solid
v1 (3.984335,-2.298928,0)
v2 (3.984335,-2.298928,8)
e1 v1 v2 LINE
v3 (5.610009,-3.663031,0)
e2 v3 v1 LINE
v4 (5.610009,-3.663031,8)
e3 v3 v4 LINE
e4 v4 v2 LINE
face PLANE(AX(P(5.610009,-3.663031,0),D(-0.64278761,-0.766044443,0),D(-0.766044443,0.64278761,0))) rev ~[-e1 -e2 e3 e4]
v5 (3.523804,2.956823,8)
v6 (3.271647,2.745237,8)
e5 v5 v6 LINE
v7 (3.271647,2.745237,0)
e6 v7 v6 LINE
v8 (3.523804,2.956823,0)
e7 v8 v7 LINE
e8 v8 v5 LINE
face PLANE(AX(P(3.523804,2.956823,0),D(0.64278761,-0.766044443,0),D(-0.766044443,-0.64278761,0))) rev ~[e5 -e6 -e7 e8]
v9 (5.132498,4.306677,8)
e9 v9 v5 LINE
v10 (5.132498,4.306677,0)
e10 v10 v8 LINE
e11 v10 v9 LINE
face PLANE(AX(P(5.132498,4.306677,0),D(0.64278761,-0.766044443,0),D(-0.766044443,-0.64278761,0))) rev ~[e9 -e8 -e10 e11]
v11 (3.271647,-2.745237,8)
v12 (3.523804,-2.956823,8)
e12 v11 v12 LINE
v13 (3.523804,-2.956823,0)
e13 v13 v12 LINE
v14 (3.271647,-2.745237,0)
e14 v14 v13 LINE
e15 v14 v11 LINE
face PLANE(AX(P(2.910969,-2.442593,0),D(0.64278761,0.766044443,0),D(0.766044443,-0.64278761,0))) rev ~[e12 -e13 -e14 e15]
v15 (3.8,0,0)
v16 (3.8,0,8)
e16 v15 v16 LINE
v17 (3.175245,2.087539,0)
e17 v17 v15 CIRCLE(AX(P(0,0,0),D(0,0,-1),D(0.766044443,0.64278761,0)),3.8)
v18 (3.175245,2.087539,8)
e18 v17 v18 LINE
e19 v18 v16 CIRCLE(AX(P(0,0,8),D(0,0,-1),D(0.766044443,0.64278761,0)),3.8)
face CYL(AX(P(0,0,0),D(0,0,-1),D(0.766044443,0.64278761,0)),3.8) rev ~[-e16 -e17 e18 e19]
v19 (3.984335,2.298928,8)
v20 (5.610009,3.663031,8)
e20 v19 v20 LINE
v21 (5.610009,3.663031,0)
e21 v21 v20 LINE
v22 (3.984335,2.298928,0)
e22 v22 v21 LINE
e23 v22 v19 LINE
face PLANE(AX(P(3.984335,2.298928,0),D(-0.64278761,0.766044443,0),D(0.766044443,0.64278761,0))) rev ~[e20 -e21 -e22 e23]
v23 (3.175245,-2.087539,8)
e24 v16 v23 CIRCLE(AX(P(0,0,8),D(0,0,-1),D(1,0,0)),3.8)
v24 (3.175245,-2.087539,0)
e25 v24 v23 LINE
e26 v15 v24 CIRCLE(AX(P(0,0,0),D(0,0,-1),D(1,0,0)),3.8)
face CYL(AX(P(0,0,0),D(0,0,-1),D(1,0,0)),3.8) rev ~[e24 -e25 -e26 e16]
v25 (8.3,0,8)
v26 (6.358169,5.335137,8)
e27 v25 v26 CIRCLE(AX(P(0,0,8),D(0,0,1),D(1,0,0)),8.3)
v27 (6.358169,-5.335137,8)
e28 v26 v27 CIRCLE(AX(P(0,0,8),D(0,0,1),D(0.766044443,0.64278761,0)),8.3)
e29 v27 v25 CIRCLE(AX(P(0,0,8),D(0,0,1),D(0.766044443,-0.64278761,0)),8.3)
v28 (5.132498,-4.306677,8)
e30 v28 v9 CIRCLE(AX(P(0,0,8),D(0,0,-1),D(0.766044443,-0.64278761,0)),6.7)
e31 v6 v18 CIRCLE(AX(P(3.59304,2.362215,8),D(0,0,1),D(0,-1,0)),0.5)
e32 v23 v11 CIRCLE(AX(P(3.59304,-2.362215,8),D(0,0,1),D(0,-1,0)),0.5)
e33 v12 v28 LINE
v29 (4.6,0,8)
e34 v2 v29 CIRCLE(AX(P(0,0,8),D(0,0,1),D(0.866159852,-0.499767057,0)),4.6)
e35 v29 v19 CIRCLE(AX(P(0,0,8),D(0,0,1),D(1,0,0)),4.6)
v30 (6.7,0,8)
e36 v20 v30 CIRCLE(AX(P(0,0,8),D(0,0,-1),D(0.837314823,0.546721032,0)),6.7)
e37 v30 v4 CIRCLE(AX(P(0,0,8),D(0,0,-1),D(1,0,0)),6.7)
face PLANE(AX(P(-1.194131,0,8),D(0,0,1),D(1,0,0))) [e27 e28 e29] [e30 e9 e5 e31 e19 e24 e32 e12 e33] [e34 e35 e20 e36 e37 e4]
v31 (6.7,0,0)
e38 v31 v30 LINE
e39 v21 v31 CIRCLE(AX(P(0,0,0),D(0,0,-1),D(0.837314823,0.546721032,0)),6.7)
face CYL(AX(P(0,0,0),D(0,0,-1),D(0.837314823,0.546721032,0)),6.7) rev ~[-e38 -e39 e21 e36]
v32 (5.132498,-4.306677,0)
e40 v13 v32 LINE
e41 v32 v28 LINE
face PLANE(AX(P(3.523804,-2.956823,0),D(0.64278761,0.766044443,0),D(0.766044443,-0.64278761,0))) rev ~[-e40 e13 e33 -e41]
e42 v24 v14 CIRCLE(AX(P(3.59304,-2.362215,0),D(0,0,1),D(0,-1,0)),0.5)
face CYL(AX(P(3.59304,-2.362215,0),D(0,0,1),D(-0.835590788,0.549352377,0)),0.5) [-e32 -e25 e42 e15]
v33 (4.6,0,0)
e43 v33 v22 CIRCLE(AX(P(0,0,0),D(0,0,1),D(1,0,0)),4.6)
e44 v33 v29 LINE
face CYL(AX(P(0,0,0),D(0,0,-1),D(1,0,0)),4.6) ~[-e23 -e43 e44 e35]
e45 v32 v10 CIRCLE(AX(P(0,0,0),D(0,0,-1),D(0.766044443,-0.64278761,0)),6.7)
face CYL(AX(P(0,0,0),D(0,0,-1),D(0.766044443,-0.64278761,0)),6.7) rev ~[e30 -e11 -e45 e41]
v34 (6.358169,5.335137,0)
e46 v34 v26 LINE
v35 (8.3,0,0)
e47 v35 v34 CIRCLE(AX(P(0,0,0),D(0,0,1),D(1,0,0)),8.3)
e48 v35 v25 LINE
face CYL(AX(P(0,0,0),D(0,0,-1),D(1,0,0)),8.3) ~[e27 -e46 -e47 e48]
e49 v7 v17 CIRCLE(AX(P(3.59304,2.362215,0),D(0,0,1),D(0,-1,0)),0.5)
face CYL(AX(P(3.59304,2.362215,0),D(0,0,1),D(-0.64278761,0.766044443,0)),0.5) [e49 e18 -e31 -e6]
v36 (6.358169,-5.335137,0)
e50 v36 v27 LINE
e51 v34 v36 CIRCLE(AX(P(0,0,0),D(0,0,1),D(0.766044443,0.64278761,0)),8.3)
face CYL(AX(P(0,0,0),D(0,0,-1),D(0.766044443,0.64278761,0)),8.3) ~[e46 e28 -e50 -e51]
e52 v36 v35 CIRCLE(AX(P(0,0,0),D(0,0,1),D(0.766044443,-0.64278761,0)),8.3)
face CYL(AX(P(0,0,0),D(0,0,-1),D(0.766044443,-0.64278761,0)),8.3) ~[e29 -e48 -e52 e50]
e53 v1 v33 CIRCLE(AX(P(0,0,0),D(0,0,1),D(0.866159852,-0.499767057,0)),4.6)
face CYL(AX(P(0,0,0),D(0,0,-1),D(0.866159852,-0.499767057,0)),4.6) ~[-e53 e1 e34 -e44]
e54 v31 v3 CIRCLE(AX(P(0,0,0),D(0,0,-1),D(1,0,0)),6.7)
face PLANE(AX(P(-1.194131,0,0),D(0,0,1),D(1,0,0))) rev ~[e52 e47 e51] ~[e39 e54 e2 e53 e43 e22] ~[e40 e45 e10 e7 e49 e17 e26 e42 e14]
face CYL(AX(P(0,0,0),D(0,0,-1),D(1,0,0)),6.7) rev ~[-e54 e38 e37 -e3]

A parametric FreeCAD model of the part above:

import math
import FreeCAD as App
import Part
import Sketcher
Q = App.Units.Quantity


def edges_at(feature, points):
    """Names of the edges that pass closest to the given points."""
    edges = feature.Shape.Edges
    near = lambda p: min(range(len(edges)), key=lambda i: edges[i].distToShape(Part.Vertex(*p))[0])
    return sorted({f"Edge{near(p) + 1}" for p in points})

doc = App.newDocument("Part")
params = doc.addObject("Spreadsheet::Sheet", "Params")
for row, (alias, value) in enumerate([
    ("sketch1_radius", "8.3 mm"),
    ("sketch1_radius2", "6.7 mm"),
    ("sketch1_radius3", "3.8 mm"),
    ("sketch1_radius4", "4.6 mm"),
    ("sketch1_length", "2.1 mm"),
    ("pad1_length", "8 mm"),
    ("fillet_radius", "0.5 mm"),
], start=1):
    params.set(f"A{row}", alias)
    params.set(f"B{row}", "=" + value)
    params.setAlias(f"B{row}", alias)

body = doc.addObject("PartDesign::Body", "Body")

# Sketch on XY plane
sketch1 = body.newObject("Sketcher::SketchObject", "Sketch")
sketch1.AttachmentSupport = (doc.getObject("XY_Plane"), [""])
sketch1.MapMode = "FlatFace"
sketch1.addGeometry(Part.ArcOfCircle(Part.Circle(App.Vector(0, 0, 0), App.Vector(0, 0, 1), 8.3), math.radians(40), math.radians(320)), False)
sketch1.addGeometry(Part.ArcOfCircle(Part.Circle(App.Vector(0, 0, 0), App.Vector(0, 0, 1), 8.3), math.radians(-40), math.radians(0)), False)
sketch1.addGeometry(Part.ArcOfCircle(Part.Circle(App.Vector(0, 0, 0), App.Vector(0, 0, 1), 8.3), math.radians(0), math.radians(40)), False)
sketch1.addGeometry(Part.ArcOfCircle(Part.Circle(App.Vector(0, 0, 0), App.Vector(0, 0, 1), 6.7), math.radians(40), math.radians(320)), False)
sketch1.addGeometry(Part.LineSegment(App.Vector(5.132498, 4.306677, 0), App.Vector(3.523804, 2.956823, 0)), False)
sketch1.addGeometry(Part.LineSegment(App.Vector(3.523804, 2.956823, 0), App.Vector(2.910969, 2.442593, 0)), False)
sketch1.addGeometry(Part.ArcOfCircle(Part.Circle(App.Vector(0, 0, 0), App.Vector(0, 0, 1), 3.8), math.radians(0), math.radians(40)), False)
sketch1.addGeometry(Part.ArcOfCircle(Part.Circle(App.Vector(0, 0, 0), App.Vector(0, 0, 1), 3.8), math.radians(-40), math.radians(0)), False)
sketch1.addGeometry(Part.LineSegment(App.Vector(2.910969, -2.442593, 0), App.Vector(3.523804, -2.956823, 0)), False)
sketch1.addGeometry(Part.LineSegment(App.Vector(3.523804, -2.956823, 0), App.Vector(5.132498, -4.306677, 0)), False)
sketch1.addGeometry(Part.ArcOfCircle(Part.Circle(App.Vector(0, 0, 0), App.Vector(0, 0, 1), 4.6), math.radians(-29.98459), math.radians(0)), False)
sketch1.addGeometry(Part.ArcOfCircle(Part.Circle(App.Vector(0, 0, 0), App.Vector(0, 0, 1), 4.6), math.radians(0), math.radians(29.98459)), False)
sketch1.addGeometry(Part.LineSegment(App.Vector(3.984335, 2.298928, 0), App.Vector(5.610009, 3.663031, 0)), False)
sketch1.addGeometry(Part.ArcOfCircle(Part.Circle(App.Vector(0, 0, 0), App.Vector(0, 0, 1), 6.7), math.radians(0), math.radians(33.142352)), False)
sketch1.addGeometry(Part.ArcOfCircle(Part.Circle(App.Vector(0, 0, 0), App.Vector(0, 0, 1), 6.7), math.radians(-33.142352), math.radians(0)), False)
sketch1.addGeometry(Part.LineSegment(App.Vector(5.610009, -3.663031, 0), App.Vector(3.984335, -2.298928, 0)), False)
sketch1.addConstraint(Sketcher.Constraint("Tangent", 0, 2, 1, 1))
sketch1.addConstraint(Sketcher.Constraint("Tangent", 1, 2, 2, 1))
sketch1.addConstraint(Sketcher.Constraint("Tangent", 2, 2, 0, 1))
sketch1.addConstraint(Sketcher.Constraint("Coincident", 3, 1, 4, 1))
sketch1.addConstraint(Sketcher.Constraint("Coincident", 4, 2, 5, 1))
sketch1.addConstraint(Sketcher.Constraint("Coincident", 5, 2, 6, 2))
sketch1.addConstraint(Sketcher.Constraint("Tangent", 6, 1, 7, 2))
sketch1.addConstraint(Sketcher.Constraint("Coincident", 7, 1, 8, 1))
sketch1.addConstraint(Sketcher.Constraint("Coincident", 8, 2, 9, 1))
sketch1.addConstraint(Sketcher.Constraint("Coincident", 9, 2, 3, 2))
sketch1.addConstraint(Sketcher.Constraint("Tangent", 10, 2, 11, 1))
sketch1.addConstraint(Sketcher.Constraint("Coincident", 11, 2, 12, 1))
sketch1.addConstraint(Sketcher.Constraint("Coincident", 12, 2, 13, 2))
sketch1.addConstraint(Sketcher.Constraint("Tangent", 13, 1, 14, 2))
sketch1.addConstraint(Sketcher.Constraint("Coincident", 14, 1, 15, 1))
sketch1.addConstraint(Sketcher.Constraint("Coincident", 15, 2, 10, 1))
sketch1.addConstraint(Sketcher.Constraint("Coincident", 0, 3, -1, 1))
sketch1.addConstraint(Sketcher.Constraint("Coincident", 3, 3, -1, 1))
sketch1.addConstraint(Sketcher.Constraint("Coincident", 6, 3, -1, 1))
sketch1.addConstraint(Sketcher.Constraint("Coincident", 10, 3, -1, 1))
sketch1.addConstraint(Sketcher.Constraint("Coincident", 13, 3, -1, 1))
sketch1.addConstraint(Sketcher.Constraint("Equal", 6, 7))
sketch1.addConstraint(Sketcher.Constraint("Equal", 10, 11))
sketch1.addConstraint(Sketcher.Constraint("Equal", 3, 13))
sketch1.addConstraint(Sketcher.Constraint("Equal", 13, 14))
sketch1.addConstraint(Sketcher.Constraint("Symmetric", 4, 2, 8, 2, -1))
sketch1.addConstraint(Sketcher.Constraint("PointOnObject", 1, 2, -1))
sketch1.addConstraint(Sketcher.Constraint("PointOnObject", 6, 1, -1))
sketch1.addConstraint(Sketcher.Constraint("PointOnObject", 10, 2, -1))
sketch1.addConstraint(Sketcher.Constraint("PointOnObject", 13, 1, -1))
sketch1.addConstraint(Sketcher.Constraint("Parallel", 4, 5))
sketch1.addConstraint(Sketcher.Constraint("Parallel", 8, 9))
sketch1.addConstraint(Sketcher.Constraint("Parallel", 5, 12))
sketch1.addConstraint(Sketcher.Constraint("Parallel", 9, 15))
sketch1.addConstraint(Sketcher.Constraint("Vertical", 0, 2, 2, 2))
sketch1.addConstraint(Sketcher.Constraint("Vertical", 5, 2, 7, 1))
sketch1.addConstraint(Sketcher.Constraint("Vertical", 12, 2, 14, 1))
sketch1.addConstraint(Sketcher.Constraint("Radius", 0, 8.3))
sketch1.addConstraint(Sketcher.Constraint("Radius", 3, 6.7))
sketch1.addConstraint(Sketcher.Constraint("Radius", 6, 3.8))
sketch1.addConstraint(Sketcher.Constraint("Radius", 10, 4.6))
sketch1.addConstraint(Sketcher.Constraint("Angle", 4, Q("-140 deg")))
sketch1.addConstraint(Sketcher.Constraint("Distance", 4, 2.1))
sketch1.addConstraint(Sketcher.Constraint("DistanceX", -1, 1, 0, 2, 6.358169))
sketch1.addConstraint(Sketcher.Constraint("DistanceX", -1, 1, 5, 2, 2.910969))
sketch1.addConstraint(Sketcher.Constraint("DistanceY", -1, 1, 11, 2, 2.298928))
sketch1.setExpression("Constraints[37]", "Params.sketch1_radius")
sketch1.setExpression("Constraints[38]", "Params.sketch1_radius2")
sketch1.setExpression("Constraints[39]", "Params.sketch1_radius3")
sketch1.setExpression("Constraints[40]", "Params.sketch1_radius4")
sketch1.setExpression("Constraints[42]", "Params.sketch1_length")
pad1 = body.newObject("PartDesign::Pad", "Pad")
pad1.Profile = sketch1
pad1.setExpression("Length", "Params.pad1_length")
doc.recompute()

fillet = body.newObject("PartDesign::Fillet", "Fillet")
fillet.Base = (pad1, edges_at(pad1, [(2.911, 2.443, 4), (2.911, -2.443, 4)]))
fillet.setExpression("Radius", "Params.fillet_radius")

doc.recompute()
